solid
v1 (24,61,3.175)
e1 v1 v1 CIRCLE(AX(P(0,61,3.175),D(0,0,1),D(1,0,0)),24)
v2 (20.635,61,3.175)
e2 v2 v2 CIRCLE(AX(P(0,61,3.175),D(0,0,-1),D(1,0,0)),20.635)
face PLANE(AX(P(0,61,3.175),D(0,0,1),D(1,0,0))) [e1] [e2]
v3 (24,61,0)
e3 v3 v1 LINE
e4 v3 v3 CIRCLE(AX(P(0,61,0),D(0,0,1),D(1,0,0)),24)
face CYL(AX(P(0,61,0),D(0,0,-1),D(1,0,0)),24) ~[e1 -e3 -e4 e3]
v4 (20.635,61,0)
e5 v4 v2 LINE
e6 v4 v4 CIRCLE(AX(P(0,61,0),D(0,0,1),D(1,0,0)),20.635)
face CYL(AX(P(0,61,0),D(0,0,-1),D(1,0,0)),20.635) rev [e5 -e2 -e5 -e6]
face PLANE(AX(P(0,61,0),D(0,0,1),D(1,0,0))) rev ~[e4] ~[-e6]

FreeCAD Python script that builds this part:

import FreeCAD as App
import Part
import Sketcher
from FreeCAD import Vector
Q = App.Units.Quantity

doc = App.newDocument("Part")
body = doc.addObject("PartDesign::Body", "Body")

# Sketch on XY plane
sketch1 = body.newObject("Sketcher::SketchObject", "Sketch")
sketch1.AttachmentSupport = (doc.getObject("XY_Plane"), [""])
sketch1.MapMode = "FlatFace"
sketch1.addGeometry(Part.Circle(Vector(0, 0, 0), Vector(0, 0, 1), 21), False)
sketch1.addConstraint([
    Sketcher.Constraint("Coincident", 0, 3, -1, 1),
    Sketcher.Constraint("Diameter", 0, 41.27),
])
pad1 = body.newObject("PartDesign::Pad", "Pad")
pad1.Profile = sketch1
pad1.Length = Q("1.625 in")
body2 = doc.addObject("PartDesign::Body", "Body001")

# Sketch on XY plane
sketch2 = body2.newObject("Sketcher::SketchObject", "Sketch001")
sketch2.AttachmentSupport = (doc.getObject("XY_Plane001"), [""])
sketch2.MapMode = "FlatFace"
sketch2.addGeometry(Part.Circle(Vector(0, 0, 0), Vector(0, 0, 1), 24), False)
sketch2.addConstraint([
    Sketcher.Constraint("Coincident", 0, 3, -1, 1),
    Sketcher.Constraint("Diameter", 0, 48.0),
])
pad2 = body2.newObject("PartDesign::Pad", "Pad001")
pad2.Profile = sketch2
pad2.Length = Q("0.125 in")
doc.recompute()

boolean = body2.newObject("PartDesign::Boolean", "Boolean")
boolean.Type = "Cut"
boolean.addObjects([body])
body3 = doc.addObject("PartDesign::Body", "Body002")
doc.recompute()

body2.Placement = App.Placement(Vector(0, 61, 0), App.Rotation(Vector(0, 0, 1), 0))
boolean2 = body3.newObject("PartDesign::Boolean", "Boolean001")
boolean2.Type = "Fuse"
boolean2.addObjects([body2])

doc.recompute()
